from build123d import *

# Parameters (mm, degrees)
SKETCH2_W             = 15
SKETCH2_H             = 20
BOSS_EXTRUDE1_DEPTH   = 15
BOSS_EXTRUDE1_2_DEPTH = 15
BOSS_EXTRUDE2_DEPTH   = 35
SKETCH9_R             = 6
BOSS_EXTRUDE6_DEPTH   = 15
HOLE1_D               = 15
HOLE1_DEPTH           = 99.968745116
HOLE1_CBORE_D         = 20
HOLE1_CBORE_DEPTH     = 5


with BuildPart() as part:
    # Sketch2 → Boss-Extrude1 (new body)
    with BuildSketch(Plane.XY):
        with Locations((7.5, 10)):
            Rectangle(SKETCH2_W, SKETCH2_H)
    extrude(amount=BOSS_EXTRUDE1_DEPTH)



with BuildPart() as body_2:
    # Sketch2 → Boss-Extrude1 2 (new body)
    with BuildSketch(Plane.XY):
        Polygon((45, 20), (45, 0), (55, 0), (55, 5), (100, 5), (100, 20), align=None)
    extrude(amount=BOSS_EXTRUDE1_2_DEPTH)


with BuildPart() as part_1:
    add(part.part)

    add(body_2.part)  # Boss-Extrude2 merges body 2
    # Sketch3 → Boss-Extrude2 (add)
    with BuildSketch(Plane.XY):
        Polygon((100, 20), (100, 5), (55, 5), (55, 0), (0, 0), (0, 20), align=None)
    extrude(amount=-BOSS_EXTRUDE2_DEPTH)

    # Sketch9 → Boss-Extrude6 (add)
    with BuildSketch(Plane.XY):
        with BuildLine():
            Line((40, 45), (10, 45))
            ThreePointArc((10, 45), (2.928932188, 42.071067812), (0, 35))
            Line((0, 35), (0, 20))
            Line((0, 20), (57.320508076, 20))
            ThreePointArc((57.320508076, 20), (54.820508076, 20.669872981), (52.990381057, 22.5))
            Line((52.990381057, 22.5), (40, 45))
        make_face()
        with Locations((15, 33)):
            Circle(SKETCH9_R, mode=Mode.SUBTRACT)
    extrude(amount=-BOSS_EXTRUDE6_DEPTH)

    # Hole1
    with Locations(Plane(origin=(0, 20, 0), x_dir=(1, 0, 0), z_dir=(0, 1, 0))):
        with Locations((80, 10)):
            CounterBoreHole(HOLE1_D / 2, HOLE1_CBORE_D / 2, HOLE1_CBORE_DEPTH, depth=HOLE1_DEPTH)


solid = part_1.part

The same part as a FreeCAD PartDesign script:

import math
import FreeCAD as App
import Part
import Sketcher
Q = App.Units.Quantity

doc = App.newDocument("Part")
body = doc.addObject("PartDesign::Body", "Body")

# Sketch on XY plane
sketch1 = doc.addObject("Sketcher::SketchObject", "Sketch")
body.addObject(sketch1)
sketch1.AttachmentSupport = (doc.XY_Plane, [""])
sketch1.MapMode = "FlatFace"
sketch1.addGeometry([
    Part.LineSegment(App.Vector(0, 20, 0), App.Vector(0, 0, 0)),
    Part.LineSegment(App.Vector(0, 0, 0), App.Vector(15, 0, 0)),
    Part.LineSegment(App.Vector(15, 0, 0), App.Vector(15, 20, 0)),
    Part.LineSegment(App.Vector(15, 20, 0), App.Vector(0, 20, 0)),
], False)
sketch1.addConstraint([
    Sketcher.Constraint("Coincident", 0, 2, 1, 1),
    Sketcher.Constraint("Coincident", 1, 2, 2, 1),
    Sketcher.Constraint("Coincident", 2, 2, 3, 1),
    Sketcher.Constraint("Coincident", 3, 2, 0, 1),
    Sketcher.Constraint("Vertical", 0),
    Sketcher.Constraint("Horizontal", 1),
    Sketcher.Constraint("Vertical", 2),
    Sketcher.Constraint("Horizontal", 3),
    Sketcher.Constraint("Coincident", 0, 2, -1, 1),
    Sketcher.Constraint("DistanceX", 1, 1, 1, 2, 15.0),
    Sketcher.Constraint("DistanceY", 0, 2, 0, 1, 20.0),
])
pad1 = doc.addObject("PartDesign::Pad", "Pad")
body.addObject(pad1)
pad1.Profile = sketch1
pad1.Length = 15
body2 = doc.addObject("PartDesign::Body", "Body001")

# Sketch on XY plane
sketch2 = doc.addObject("Sketcher::SketchObject", "Sketch001")
body2.addObject(sketch2)
sketch2.AttachmentSupport = (doc.getObject("XY_Plane001"), [""])
sketch2.MapMode = "FlatFace"
sketch2.addGeometry([
    Part.LineSegment(App.Vector(45, 20, 0), App.Vector(45, 0, 0)),  # 0
    Part.LineSegment(App.Vector(45, 0, 0), App.Vector(55, 0, 0)),  # 1
    Part.LineSegment(App.Vector(55, 0, 0), App.Vector(55, 5, 0)),  # 2
    Part.LineSegment(App.Vector(55, 5, 0), App.Vector(100, 5, 0)),  # 3
    Part.LineSegment(App.Vector(100, 5, 0), App.Vector(100, 20, 0)),  # 4
    Part.LineSegment(App.Vector(100, 20, 0), App.Vector(45, 20, 0)),  # 5
], False)
sketch2.addConstraint([
    Sketcher.Constraint("Coincident", 0, 2, 1, 1),
    Sketcher.Constraint("Coincident", 1, 2, 2, 1),
    Sketcher.Constraint("Coincident", 2, 2, 3, 1),
    Sketcher.Constraint("Coincident", 3, 2, 4, 1),
    Sketcher.Constraint("Coincident", 4, 2, 5, 1),
    Sketcher.Constraint("Coincident", 5, 2, 0, 1),
    Sketcher.Constraint("Vertical", 0),
    Sketcher.Constraint("Horizontal", 1),
    Sketcher.Constraint("Vertical", 2),
    Sketcher.Constraint("Horizontal", 3),
    Sketcher.Constraint("Vertical", 4),
    Sketcher.Constraint("Horizontal", 5),
    Sketcher.Constraint("PointOnObject", 0, 2, -1),
    Sketcher.Constraint("DistanceX", 1, 1, 1, 2, 10.0),
    Sketcher.Constraint("DistanceX", 3, 1, 3, 2, 45.0),
    Sketcher.Constraint("DistanceY", 0, 2, 0, 1, 20.0),
    Sketcher.Constraint("DistanceY", 2, 1, 2, 2, 5.0),
    Sketcher.Constraint("DistanceX", -1, 1, 0, 2, 45.0),
])
pad2 = doc.addObject("PartDesign::Pad", "Pad001")
body2.addObject(pad2)
pad2.Profile = sketch2
pad2.Length = 15
body.AllowCompound = True
doc.recompute()

boolean = doc.addObject("PartDesign::Boolean", "Boolean")
body.addObject(boolean)
boolean.Type = "Fuse"
boolean.addObjects([body2])

# Sketch on XY plane
sketch3 = doc.addObject("Sketcher::SketchObject", "Sketch002")
body.addObject(sketch3)
sketch3.AttachmentSupport = (doc.XY_Plane, [""])
sketch3.MapMode = "FlatFace"
sketch3.addGeometry([
    Part.LineSegment(App.Vector(100, 5, 0), App.Vector(100, 20, 0)),  # 0
    Part.LineSegment(App.Vector(100, 20, 0), App.Vector(0, 20, 0)),  # 1
    Part.LineSegment(App.Vector(0, 20, 0), App.Vector(0, 0, 0)),  # 2
    Part.LineSegment(App.Vector(0, 0, 0), App.Vector(55, 0, 0)),  # 3
    Part.LineSegment(App.Vector(55, 0, 0), App.Vector(55, 5, 0)),  # 4
    Part.LineSegment(App.Vector(55, 5, 0), App.Vector(100, 5, 0)),  # 5
], False)
sketch3.addConstraint([
    Sketcher.Constraint("Coincident", 0, 2, 1, 1),
    Sketcher.Constraint("Coincident", 1, 2, 2, 1),
    Sketcher.Constraint("Coincident", 2, 2, 3, 1),
    Sketcher.Constraint("Coincident", 3, 2, 4, 1),
    Sketcher.Constraint("Coincident", 4, 2, 5, 1),
    Sketcher.Constraint("Coincident", 5, 2, 0, 1),
    Sketcher.Constraint("Vertical", 0),
    Sketcher.Constraint("Horizontal", 1),
    Sketcher.Constraint("Vertical", 2),
    Sketcher.Constraint("Horizontal", 3),
    Sketcher.Constraint("Vertical", 4),
    Sketcher.Constraint("Horizontal", 5),
    Sketcher.Constraint("Coincident", 2, 2, -1, 1),
    Sketcher.Constraint("DistanceX", 1, 2, 1, 1, 100.0),
    Sketcher.Constraint("DistanceX", 3, 1, 3, 2, 55.0),
    Sketcher.Constraint("DistanceY", 0, 1, 0, 2, 15.0),
    Sketcher.Constraint("DistanceY", 2, 2, 2, 1, 20.0),
])
pad3 = doc.addObject("PartDesign::Pad", "Pad002")
body.addObject(pad3)
pad3.Profile = sketch3
pad3.Length = 35
pad3.Reversed = True

# Sketch on XY plane
sketch4 = doc.addObject("Sketcher::SketchObject", "Sketch003")
body.addObject(sketch4)
sketch4.AttachmentSupport = (doc.XY_Plane, [""])
sketch4.MapMode = "FlatFace"
sketch4.addGeometry([
    Part.LineSegment(App.Vector(40, 45, 0), App.Vector(10, 45, 0)),  # 0
    Part.ArcOfCircle(Part.Circle(App.Vector(10, 35, 0), App.Vector(0, 0, 1), 10), math.radians(90), math.radians(180)),  # 1
    Part.LineSegment(App.Vector(0, 35, 0), App.Vector(0, 20, 0)),  # 2
    Part.LineSegment(App.Vector(0, 20, 0), App.Vector(57.320508, 20, 0)),  # 3
    Part.ArcOfCircle(Part.Circle(App.Vector(57.320508, 25, 0), App.Vector(0, 0, 1), 5), math.radians(-150), math.radians(-90)),  # 4
    Part.LineSegment(App.Vector(52.990381, 22.5, 0), App.Vector(40, 45, 0)),  # 5
    Part.Circle(App.Vector(15, 33, 0), App.Vector(0, 0, 1), 6),  # 6
], False)
sketch4.addConstraint([
    Sketcher.Constraint("Tangent", 0, 2, 1, 1),
    Sketcher.Constraint("Tangent", 1, 2, 2, 1),
    Sketcher.Constraint("Coincident", 2, 2, 3, 1),
    Sketcher.Constraint("Tangent", 3, 2, 4, 2),
    Sketcher.Constraint("Tangent", 4, 1, 5, 1),
    Sketcher.Constraint("Coincident", 5, 2, 0, 1),
    Sketcher.Constraint("Horizontal", 0),
    Sketcher.Constraint("Vertical", 2),
    Sketcher.Constraint("Horizontal", 3),
    Sketcher.Constraint("PointOnObject", 1, 2, -2),
    Sketcher.Constraint("Diameter", 6, 12.0),
    Sketcher.Constraint("Radius", 1, 10.0),
    Sketcher.Constraint("Radius", 4, 5.0),
    Sketcher.Constraint("DistanceX", 0, 2, 0, 1, 30.0),
    Sketcher.Constraint("DistanceY", 2, 2, 2, 1, 15.0),
    Sketcher.Constraint("Angle", 5, Q("120 deg")),
    Sketcher.Constraint("DistanceY", -1, 1, 1, 3, 35.0),
    Sketcher.Constraint("DistanceX", -1, 1, 6, 3, 15.0),
    Sketcher.Constraint("DistanceY", -1, 1, 6, 3, 33.0),
])
pad4 = doc.addObject("PartDesign::Pad", "Pad003")
body.addObject(pad4)
pad4.Profile = sketch4
pad4.Length = 15
pad4.Reversed = True

# Sketch on XZ plane
sketch5 = doc.addObject("Sketcher::SketchObject", "Sketch004")
body.addObject(sketch5)
sketch5.AttachmentSupport = (doc.XZ_Plane, [""])
sketch5.MapMode = "FlatFace"
sketch5.AttachmentOffset = App.Placement(App.Vector(0, 0, -20), App.Rotation())
sketch5.addGeometry(Part.Circle(App.Vector(80, -10, 0), App.Vector(0, 0, 1), 7.5), False)
sketch5.addConstraint([
    Sketcher.Constraint("Diameter", 0, 15.0),
    Sketcher.Constraint("DistanceX", -1, 1, 0, 3, 80.0),
    Sketcher.Constraint("DistanceY", 0, 3, -1, 1, 10.0),
])
doc.recompute()
hole = doc.addObject("PartDesign::Hole", "Hole")
body.addObject(hole)
hole.Profile = sketch5
hole.ThreadType = "None"
hole.Diameter = 15
hole.DepthType = "Dimension"
hole.Depth = 99.968745
hole.DrillPoint = "Flat"
hole.HoleCutType = "Counterbore"
hole.HoleCutDiameter = 20
hole.HoleCutDepth = 5
hole.Reversed = True

doc.recompute()
